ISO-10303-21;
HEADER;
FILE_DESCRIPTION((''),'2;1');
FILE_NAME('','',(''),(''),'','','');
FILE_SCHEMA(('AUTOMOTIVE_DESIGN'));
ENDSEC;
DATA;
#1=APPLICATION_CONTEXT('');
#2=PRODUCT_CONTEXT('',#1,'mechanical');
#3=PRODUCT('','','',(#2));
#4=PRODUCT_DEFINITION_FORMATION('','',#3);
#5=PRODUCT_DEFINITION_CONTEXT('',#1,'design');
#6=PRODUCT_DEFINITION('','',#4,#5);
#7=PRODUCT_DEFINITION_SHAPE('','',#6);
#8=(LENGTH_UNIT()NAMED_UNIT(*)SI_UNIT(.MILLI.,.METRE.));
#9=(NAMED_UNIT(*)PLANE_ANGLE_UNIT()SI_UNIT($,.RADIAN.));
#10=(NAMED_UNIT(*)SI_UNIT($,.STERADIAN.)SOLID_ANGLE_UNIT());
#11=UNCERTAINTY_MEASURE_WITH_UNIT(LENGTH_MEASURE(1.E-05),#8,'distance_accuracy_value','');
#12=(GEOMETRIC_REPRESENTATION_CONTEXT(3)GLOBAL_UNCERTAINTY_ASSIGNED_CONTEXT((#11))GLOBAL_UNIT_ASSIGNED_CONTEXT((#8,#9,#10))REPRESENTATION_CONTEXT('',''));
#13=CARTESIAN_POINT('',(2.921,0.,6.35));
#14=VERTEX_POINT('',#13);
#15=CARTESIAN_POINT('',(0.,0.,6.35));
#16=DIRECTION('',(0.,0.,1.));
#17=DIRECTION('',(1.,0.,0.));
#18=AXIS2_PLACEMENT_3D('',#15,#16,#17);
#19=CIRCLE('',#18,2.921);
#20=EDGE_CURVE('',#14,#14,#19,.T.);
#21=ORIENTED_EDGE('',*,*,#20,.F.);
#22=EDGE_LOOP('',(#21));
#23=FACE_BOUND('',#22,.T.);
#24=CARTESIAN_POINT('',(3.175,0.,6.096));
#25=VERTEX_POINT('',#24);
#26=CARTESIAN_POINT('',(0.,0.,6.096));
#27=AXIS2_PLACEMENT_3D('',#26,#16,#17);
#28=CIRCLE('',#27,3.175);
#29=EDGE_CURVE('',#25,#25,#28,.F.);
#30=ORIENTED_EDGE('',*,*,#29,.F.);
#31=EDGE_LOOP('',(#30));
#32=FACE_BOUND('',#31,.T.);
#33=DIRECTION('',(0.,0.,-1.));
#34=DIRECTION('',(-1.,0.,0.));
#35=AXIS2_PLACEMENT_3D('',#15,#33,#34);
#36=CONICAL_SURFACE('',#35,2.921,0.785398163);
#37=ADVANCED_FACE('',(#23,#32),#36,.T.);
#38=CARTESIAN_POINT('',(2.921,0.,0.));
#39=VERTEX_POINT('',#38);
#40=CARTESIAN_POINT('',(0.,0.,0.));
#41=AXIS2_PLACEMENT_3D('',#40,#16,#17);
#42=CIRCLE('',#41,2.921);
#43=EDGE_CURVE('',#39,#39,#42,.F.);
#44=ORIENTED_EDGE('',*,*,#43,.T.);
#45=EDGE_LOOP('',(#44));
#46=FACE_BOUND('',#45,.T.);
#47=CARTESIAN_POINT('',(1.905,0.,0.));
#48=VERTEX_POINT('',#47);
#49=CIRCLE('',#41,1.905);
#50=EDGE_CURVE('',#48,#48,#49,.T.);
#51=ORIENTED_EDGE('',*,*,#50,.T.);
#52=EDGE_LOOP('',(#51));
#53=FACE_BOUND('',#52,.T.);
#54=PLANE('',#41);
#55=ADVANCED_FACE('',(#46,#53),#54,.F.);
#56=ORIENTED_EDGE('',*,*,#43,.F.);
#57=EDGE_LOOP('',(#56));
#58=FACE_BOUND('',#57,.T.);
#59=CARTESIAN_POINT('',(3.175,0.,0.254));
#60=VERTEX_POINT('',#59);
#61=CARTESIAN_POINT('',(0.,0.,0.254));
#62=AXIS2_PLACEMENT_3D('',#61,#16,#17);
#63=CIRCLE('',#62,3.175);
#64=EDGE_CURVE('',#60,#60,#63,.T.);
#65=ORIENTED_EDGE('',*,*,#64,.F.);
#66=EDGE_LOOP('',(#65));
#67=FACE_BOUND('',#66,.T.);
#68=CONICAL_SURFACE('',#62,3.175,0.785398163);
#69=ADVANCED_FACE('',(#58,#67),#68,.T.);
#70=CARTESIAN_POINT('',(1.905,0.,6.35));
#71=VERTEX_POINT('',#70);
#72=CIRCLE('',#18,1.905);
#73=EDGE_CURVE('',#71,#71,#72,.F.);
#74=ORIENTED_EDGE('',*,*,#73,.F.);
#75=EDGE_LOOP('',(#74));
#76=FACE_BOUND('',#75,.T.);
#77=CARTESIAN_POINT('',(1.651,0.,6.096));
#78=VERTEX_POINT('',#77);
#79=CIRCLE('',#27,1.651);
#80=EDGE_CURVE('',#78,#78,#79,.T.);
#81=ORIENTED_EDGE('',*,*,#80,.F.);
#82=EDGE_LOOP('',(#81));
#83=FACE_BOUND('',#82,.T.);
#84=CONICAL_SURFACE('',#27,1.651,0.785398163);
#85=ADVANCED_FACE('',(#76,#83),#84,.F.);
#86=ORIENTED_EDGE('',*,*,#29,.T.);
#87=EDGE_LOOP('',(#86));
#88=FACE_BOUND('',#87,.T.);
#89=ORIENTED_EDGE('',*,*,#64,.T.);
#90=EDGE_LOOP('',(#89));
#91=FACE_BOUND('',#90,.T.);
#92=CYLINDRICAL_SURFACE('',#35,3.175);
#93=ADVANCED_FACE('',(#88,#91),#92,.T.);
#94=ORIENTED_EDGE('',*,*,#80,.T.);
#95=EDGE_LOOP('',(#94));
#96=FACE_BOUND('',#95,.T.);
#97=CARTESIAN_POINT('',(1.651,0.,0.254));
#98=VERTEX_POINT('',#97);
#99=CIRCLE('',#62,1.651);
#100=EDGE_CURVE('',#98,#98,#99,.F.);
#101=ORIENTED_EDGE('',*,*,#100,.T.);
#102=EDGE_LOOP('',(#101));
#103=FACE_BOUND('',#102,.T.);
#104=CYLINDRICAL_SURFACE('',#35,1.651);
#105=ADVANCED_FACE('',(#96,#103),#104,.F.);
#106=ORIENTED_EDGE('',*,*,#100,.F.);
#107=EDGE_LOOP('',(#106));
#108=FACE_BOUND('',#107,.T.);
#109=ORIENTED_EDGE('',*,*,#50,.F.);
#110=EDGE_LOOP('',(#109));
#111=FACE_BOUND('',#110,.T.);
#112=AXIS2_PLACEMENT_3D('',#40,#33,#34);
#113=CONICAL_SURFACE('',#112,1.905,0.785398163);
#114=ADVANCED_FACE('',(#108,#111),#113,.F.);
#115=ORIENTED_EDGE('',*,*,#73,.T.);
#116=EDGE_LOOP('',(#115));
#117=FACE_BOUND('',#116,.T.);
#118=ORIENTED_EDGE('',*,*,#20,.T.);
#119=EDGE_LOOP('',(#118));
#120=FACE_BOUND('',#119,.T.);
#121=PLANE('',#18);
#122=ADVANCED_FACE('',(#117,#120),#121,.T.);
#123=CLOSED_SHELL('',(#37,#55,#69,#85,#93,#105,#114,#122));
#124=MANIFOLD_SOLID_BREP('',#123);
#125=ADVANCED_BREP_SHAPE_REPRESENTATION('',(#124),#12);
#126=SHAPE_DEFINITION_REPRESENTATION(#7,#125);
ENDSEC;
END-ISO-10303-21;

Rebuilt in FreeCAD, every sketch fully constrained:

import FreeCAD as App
import Part
import Sketcher

V = App.Vector
Q = App.Units.Quantity


def edges_at(feature, points):
    """Names of the edges that pass closest to the given points."""
    edges = feature.Shape.Edges
    near = lambda p: min(range(len(edges)), key=lambda i: edges[i].distToShape(Part.Vertex(*p))[0])
    return sorted({f"Edge{near(p) + 1}" for p in points})

doc = App.newDocument("Part")
body = doc.addObject("PartDesign::Body", "Body")

# Sketch on XY plane
sketch1 = body.newObject("Sketcher::SketchObject", "Sketch")
sketch1.AttachmentSupport = (doc.getObject("XY_Plane"), [""])
sketch1.MapMode = "FlatFace"
sketch1.addGeometry([
    Part.Circle(V(0, 0, 0), V(0, 0, 1), 3.175),
    Part.Circle(V(0, 0, 0), V(0, 0, 1), 1.651),
], False)
sketch1.addConstraint([
    Sketcher.Constraint("Coincident", 0, 3, -1, 1),
    Sketcher.Constraint("Coincident", 1, 3, -1, 1),
    Sketcher.Constraint("Diameter", 0, Q("0.25 in")),
    Sketcher.Constraint("Diameter", 1, Q("0.13 in")),
])
pad1 = body.newObject("PartDesign::Pad", "Pad")
pad1.Profile = sketch1
pad1.Length = Q("0.25 in")
doc.recompute()

chamfer = body.newObject("PartDesign::Chamfer", "Chamfer")
chamfer.Base = (pad1, edges_at(pad1, [
    (-3.175, 0, 0),
    (-3.175, 0, 6.35),
    (-1.651, 0, 0),
    (-1.651, 0, 6.35),
]))
chamfer.Size = Q("0.01 in")

doc.recompute()
